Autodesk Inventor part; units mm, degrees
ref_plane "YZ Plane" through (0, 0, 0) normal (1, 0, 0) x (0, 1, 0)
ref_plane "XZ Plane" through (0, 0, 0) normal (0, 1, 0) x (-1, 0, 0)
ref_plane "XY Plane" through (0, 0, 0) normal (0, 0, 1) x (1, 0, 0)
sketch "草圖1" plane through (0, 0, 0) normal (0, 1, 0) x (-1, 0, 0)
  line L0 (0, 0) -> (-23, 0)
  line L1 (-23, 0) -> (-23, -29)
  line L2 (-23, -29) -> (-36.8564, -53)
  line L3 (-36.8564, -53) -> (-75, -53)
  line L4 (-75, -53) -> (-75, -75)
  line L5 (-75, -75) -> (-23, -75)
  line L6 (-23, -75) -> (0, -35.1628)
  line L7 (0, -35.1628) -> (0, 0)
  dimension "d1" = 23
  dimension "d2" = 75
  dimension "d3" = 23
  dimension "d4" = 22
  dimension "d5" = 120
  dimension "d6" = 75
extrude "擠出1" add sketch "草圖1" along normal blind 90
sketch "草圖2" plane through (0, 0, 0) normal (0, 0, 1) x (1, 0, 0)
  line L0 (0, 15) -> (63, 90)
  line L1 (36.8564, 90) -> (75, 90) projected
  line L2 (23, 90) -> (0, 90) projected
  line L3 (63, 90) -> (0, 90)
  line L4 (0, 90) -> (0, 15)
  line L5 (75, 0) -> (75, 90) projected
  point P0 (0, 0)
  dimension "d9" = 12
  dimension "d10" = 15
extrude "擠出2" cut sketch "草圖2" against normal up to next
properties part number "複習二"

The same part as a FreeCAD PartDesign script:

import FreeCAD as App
import Part
import Sketcher
Q = App.Units.Quantity

doc = App.newDocument("Part")
body = doc.addObject("PartDesign::Body", "Body")

sketch1 = body.newObject("Sketcher::SketchObject", "Sketch")
sketch1.AttachmentSupport = (doc.getObject("XZ_Plane"), [""])
sketch1.MapMode = "FlatFace"
sketch1.addGeometry(Part.LineSegment(App.Vector(0, -35, 0), App.Vector(0, 0, 0)), False)
sketch1.addGeometry(Part.LineSegment(App.Vector(0, 0, 0), App.Vector(23, 0, 0)), False)
sketch1.addGeometry(Part.LineSegment(App.Vector(23, 0, 0), App.Vector(23, -29, 0)), False)
sketch1.addGeometry(Part.LineSegment(App.Vector(23, -29, 0), App.Vector(37, -53, 0)), False)
sketch1.addGeometry(Part.LineSegment(App.Vector(37, -53, 0), App.Vector(75, -53, 0)), False)
sketch1.addGeometry(Part.LineSegment(App.Vector(75, -53, 0), App.Vector(75, -75, 0)), False)
sketch1.addGeometry(Part.LineSegment(App.Vector(75, -75, 0), App.Vector(23, -75, 0)), False)
sketch1.addGeometry(Part.LineSegment(App.Vector(23, -75, 0), App.Vector(0, -35, 0)), False)
sketch1.addConstraint(Sketcher.Constraint("Coincident", 0, 2, 1, 1))
sketch1.addConstraint(Sketcher.Constraint("Coincident", 1, 2, 2, 1))
sketch1.addConstraint(Sketcher.Constraint("Coincident", 2, 2, 3, 1))
sketch1.addConstraint(Sketcher.Constraint("Coincident", 3, 2, 4, 1))
sketch1.addConstraint(Sketcher.Constraint("Coincident", 4, 2, 5, 1))
sketch1.addConstraint(Sketcher.Constraint("Coincident", 5, 2, 6, 1))
sketch1.addConstraint(Sketcher.Constraint("Coincident", 6, 2, 7, 1))
sketch1.addConstraint(Sketcher.Constraint("Coincident", 7, 2, 0, 1))
sketch1.addConstraint(Sketcher.Constraint("Vertical", 0))
sketch1.addConstraint(Sketcher.Constraint("Horizontal", 1))
sketch1.addConstraint(Sketcher.Constraint("Vertical", 2))
sketch1.addConstraint(Sketcher.Constraint("Horizontal", 4))
sketch1.addConstraint(Sketcher.Constraint("Vertical", 5))
sketch1.addConstraint(Sketcher.Constraint("Horizontal", 6))
sketch1.addConstraint(Sketcher.Constraint("Coincident", 0, 2, -1, 1))
sketch1.addConstraint(Sketcher.Constraint("Parallel", 3, 7))
sketch1.addConstraint(Sketcher.Constraint("Vertical", 2, 2, 6, 2))
sketch1.addConstraint(Sketcher.Constraint("DistanceX", 1, 1, 1, 2, 23.0))
sketch1.addConstraint(Sketcher.Constraint("DistanceY", 5, 2, 5, 1, 22.0))
sketch1.addConstraint(Sketcher.Constraint("Angle", 7, Q("120 deg")))
sketch1.addConstraint(Sketcher.Constraint("DistanceX", -1, 1, 4, 2, 75.0))
sketch1.addConstraint(Sketcher.Constraint("DistanceY", 5, 2, -1, 1, 75.0))
sketch1.addConstraint(Sketcher.Constraint("DistanceY", 2, 2, 2, 1, 29.0))
pad1 = body.newObject("PartDesign::Pad", "Pad")
pad1.Profile = sketch1
pad1.Length = 90
pad1.Reversed = True

sketch2 = body.newObject("Sketcher::SketchObject", "Sketch001")
sketch2.AttachmentSupport = (doc.getObject("XY_Plane"), [""])
sketch2.MapMode = "FlatFace"
sketch2.addGeometry(Part.LineSegment(App.Vector(0, 90, 0), App.Vector(0, 15, 0)), False)
sketch2.addGeometry(Part.LineSegment(App.Vector(0, 15, 0), App.Vector(63, 90, 0)), False)
sketch2.addGeometry(Part.LineSegment(App.Vector(63, 90, 0), App.Vector(0, 90, 0)), False)
sketch2.addConstraint(Sketcher.Constraint("Coincident", 0, 2, 1, 1))
sketch2.addConstraint(Sketcher.Constraint("Coincident", 1, 2, 2, 1))
sketch2.addConstraint(Sketcher.Constraint("Coincident", 2, 2, 0, 1))
sketch2.addConstraint(Sketcher.Constraint("Vertical", 0))
sketch2.addConstraint(Sketcher.Constraint("Horizontal", 2))
sketch2.addConstraint(Sketcher.Constraint("PointOnObject", 0, 2, -2))
sketch2.addConstraint(Sketcher.Constraint("DistanceY", -1, 1, 0, 2, 15.0))
sketch2.addConstraint(Sketcher.Constraint("DistanceX", 2, 2, 2, 1, 63.0))
sketch2.addConstraint(Sketcher.Constraint("DistanceY", 0, 2, 0, 1, 75.0))
pocket1 = body.newObject("PartDesign::Pocket", "Pocket")
pocket1.Profile = sketch2
pocket1.Type = "UpToFirst"

doc.recompute()
